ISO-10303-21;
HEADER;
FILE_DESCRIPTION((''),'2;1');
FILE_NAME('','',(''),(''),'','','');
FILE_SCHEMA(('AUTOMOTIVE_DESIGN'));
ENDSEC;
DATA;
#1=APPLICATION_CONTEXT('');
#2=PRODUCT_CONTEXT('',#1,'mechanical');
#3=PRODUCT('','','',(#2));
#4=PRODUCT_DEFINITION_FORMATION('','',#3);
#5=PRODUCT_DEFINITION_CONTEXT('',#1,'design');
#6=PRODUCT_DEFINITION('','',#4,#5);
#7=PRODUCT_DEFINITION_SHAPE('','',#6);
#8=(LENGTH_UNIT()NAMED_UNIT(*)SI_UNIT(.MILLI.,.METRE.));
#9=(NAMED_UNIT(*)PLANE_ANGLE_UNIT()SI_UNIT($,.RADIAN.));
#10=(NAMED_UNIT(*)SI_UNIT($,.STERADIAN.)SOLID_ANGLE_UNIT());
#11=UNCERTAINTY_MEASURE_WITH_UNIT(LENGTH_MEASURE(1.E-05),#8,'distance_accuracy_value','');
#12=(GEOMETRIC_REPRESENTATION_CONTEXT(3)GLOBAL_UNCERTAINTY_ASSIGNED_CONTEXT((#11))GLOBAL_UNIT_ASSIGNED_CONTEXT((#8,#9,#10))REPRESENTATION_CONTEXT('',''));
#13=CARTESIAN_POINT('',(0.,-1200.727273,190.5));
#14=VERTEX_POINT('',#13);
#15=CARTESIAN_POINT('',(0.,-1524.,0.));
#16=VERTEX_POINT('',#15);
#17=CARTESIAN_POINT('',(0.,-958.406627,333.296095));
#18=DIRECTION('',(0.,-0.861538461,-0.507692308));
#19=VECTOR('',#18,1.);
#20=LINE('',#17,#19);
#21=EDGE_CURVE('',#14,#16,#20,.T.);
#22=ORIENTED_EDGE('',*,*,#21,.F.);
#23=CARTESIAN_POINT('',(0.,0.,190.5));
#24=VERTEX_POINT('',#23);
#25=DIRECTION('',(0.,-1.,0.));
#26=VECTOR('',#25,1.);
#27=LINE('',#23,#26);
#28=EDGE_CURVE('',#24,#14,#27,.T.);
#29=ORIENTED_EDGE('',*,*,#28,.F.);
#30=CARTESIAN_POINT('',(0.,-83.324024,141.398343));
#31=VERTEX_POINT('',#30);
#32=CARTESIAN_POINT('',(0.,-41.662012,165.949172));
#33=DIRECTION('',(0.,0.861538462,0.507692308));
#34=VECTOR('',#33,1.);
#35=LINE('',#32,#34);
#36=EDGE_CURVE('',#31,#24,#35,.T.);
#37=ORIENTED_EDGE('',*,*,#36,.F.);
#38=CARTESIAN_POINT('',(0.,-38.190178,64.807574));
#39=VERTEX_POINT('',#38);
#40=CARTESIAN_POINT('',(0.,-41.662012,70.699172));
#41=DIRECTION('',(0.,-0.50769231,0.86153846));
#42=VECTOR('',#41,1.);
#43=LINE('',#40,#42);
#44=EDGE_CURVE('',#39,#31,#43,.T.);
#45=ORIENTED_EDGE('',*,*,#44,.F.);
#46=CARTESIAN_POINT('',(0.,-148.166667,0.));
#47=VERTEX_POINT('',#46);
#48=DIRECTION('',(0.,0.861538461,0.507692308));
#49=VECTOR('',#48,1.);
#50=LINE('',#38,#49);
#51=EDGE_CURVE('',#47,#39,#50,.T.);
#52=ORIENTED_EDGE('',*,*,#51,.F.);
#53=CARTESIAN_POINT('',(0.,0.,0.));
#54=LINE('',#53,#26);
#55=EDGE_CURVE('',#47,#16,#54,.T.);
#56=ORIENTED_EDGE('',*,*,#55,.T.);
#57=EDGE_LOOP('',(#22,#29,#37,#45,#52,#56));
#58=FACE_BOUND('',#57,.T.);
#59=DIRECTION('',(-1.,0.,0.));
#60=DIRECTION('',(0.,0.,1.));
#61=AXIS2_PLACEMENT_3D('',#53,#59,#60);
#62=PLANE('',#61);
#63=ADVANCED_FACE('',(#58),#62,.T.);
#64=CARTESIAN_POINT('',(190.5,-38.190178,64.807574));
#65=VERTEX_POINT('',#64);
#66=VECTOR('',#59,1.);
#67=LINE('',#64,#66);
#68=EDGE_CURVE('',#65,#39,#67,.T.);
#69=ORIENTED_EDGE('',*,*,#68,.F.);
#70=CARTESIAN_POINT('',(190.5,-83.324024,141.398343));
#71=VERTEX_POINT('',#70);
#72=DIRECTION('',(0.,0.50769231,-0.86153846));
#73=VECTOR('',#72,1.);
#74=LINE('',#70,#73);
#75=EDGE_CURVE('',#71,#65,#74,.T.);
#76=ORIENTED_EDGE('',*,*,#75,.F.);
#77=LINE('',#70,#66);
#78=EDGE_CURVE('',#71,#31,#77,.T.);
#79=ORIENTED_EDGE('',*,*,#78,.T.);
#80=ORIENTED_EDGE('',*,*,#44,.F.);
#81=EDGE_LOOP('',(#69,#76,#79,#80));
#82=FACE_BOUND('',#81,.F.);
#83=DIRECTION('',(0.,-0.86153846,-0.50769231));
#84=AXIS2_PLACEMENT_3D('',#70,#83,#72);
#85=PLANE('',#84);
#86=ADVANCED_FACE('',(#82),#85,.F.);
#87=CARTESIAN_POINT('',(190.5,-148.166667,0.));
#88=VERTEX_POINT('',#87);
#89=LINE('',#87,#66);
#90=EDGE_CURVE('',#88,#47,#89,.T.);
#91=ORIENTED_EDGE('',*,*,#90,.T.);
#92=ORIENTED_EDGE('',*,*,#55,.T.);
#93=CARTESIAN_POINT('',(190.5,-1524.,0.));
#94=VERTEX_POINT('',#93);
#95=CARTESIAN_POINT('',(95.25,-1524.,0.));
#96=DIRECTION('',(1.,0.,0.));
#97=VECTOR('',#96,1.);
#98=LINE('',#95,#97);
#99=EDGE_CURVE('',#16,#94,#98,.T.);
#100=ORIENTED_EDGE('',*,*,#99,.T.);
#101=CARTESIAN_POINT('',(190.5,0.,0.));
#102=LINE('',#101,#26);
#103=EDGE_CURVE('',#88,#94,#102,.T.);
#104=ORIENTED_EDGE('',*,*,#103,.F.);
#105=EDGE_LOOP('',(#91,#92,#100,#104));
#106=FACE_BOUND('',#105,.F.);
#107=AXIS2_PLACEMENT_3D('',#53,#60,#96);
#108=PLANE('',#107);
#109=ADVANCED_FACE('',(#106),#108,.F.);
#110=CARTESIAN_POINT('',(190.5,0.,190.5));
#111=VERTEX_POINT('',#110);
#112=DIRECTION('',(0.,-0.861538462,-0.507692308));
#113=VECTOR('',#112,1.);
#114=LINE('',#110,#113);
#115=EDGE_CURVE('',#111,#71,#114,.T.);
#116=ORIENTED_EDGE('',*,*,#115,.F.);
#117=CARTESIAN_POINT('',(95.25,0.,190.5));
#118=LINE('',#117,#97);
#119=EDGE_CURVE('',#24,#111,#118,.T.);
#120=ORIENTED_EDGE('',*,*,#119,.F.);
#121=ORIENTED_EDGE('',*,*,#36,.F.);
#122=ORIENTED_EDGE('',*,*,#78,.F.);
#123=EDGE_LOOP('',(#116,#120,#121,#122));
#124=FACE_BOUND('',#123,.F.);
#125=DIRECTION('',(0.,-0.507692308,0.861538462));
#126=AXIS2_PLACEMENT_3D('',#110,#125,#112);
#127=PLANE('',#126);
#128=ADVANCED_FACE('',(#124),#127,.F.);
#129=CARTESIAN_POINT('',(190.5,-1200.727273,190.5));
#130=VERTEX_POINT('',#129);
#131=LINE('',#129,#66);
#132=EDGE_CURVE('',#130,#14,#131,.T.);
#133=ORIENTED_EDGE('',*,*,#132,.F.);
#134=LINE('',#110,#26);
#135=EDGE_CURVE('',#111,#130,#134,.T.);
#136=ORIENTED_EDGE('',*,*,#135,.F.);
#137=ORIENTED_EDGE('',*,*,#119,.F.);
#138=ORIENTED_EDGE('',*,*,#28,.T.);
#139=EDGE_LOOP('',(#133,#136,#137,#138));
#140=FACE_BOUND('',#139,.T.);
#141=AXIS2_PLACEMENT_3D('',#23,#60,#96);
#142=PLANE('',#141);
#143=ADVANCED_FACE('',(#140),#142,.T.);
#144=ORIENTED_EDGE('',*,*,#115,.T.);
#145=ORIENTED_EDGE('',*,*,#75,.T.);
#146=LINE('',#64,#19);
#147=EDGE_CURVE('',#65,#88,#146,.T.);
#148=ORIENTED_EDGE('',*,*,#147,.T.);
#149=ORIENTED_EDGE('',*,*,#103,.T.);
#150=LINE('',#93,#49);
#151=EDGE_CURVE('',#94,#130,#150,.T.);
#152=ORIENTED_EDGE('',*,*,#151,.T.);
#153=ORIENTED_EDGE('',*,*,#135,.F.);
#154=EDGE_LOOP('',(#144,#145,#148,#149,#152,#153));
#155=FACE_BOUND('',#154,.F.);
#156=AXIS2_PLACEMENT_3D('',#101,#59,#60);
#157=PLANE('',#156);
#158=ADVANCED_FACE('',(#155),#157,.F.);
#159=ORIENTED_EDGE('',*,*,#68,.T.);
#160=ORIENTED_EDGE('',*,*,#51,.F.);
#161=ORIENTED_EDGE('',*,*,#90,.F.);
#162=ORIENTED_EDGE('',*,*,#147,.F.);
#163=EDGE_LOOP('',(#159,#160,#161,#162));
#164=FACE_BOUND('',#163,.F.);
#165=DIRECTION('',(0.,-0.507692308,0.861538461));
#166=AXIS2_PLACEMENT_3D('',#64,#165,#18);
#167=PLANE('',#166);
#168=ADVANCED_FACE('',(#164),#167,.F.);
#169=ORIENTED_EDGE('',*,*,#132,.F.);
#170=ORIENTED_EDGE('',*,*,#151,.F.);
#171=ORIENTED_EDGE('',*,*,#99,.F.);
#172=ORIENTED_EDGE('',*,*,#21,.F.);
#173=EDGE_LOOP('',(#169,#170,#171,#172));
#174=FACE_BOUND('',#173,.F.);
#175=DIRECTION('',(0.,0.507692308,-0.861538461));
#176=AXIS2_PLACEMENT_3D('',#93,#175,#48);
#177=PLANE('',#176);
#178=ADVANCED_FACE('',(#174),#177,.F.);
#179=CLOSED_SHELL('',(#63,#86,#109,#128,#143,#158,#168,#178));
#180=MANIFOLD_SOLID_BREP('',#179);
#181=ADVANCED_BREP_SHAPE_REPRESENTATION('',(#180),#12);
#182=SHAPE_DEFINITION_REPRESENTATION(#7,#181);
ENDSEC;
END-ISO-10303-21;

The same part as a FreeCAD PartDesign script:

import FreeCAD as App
import Part
import Sketcher

V = App.Vector
Q = App.Units.Quantity


def add_polygon(sketch, points):
    """Adds a closed chain of lines whose ends are joined by coincident constraints."""
    first, n = sketch.GeometryCount, len(points)
    for a, b in zip(points, points[1:] + points[:1]):
        sketch.addGeometry(Part.LineSegment(App.Vector(*a, 0), App.Vector(*b, 0)), False)
    for i in range(n):
        sketch.addConstraint(Sketcher.Constraint("Coincident", first + i, 2, first + (i + 1) % n, 1))

doc = App.newDocument("Part")
body = doc.addObject("PartDesign::Body", "Body")

sketch1 = body.newObject("Sketcher::SketchObject", "Sketch")
sketch1.AttachmentSupport = (doc.getObject("XZ_Plane"), [""])
sketch1.MapMode = "FlatFace"
add_polygon(sketch1, [(0, 190.5), (0, 0), (190.5, 0), (190.5, 190.5)])
sketch1.addConstraint([
    Sketcher.Constraint("Vertical", 0),
    Sketcher.Constraint("Horizontal", 1),
    Sketcher.Constraint("Vertical", 2),
    Sketcher.Constraint("Horizontal", 3),
    Sketcher.Constraint("Coincident", 0, 2, -1, 1),
    Sketcher.Constraint("Equal", 3, 0),
    Sketcher.Constraint("DistanceX", 1, 1, 1, 2, Q("7.5 in")),
])
pad1 = body.newObject("PartDesign::Pad", "Pad")
pad1.Profile = sketch1
pad1.Length = Q("60 in")

sketch2 = body.newObject("Sketcher::SketchObject", "Sketch001")
sketch2.AttachmentSupport = (doc.getObject("YZ_Plane"), [""])
sketch2.MapMode = "FlatFace"
sketch2.AttachmentOffset = App.Placement(V(0, 0, 7.5 * 25.4), App.Rotation())
add_polygon(sketch2, [(-1524, 190.5), (-1524, 0), (-1200.727273, 190.5)])
add_polygon(sketch2, [(-83.324024, 141.398343), (0, 0), (0, 190.5)])
sketch2.addConstraint([
    Sketcher.Constraint("Vertical", 0),
    Sketcher.Constraint("Horizontal", 2),
    Sketcher.Constraint("Vertical", 4),
    Sketcher.Constraint("Coincident", 3, 2, -1, 1),
    Sketcher.Constraint("PointOnObject", 0, 2, -1),
    Sketcher.Constraint("Perpendicular", 1, 3),
    Sketcher.Constraint("Perpendicular", 3, 5),
    Sketcher.Constraint("Horizontal", 2, 2, 4, 2),
    Sketcher.Constraint("DistanceY", 0, 2, 0, 1, Q("7.5 in")),
    Sketcher.Constraint("DistanceX", 0, 2, -1, 1, Q("60 in")),
    Sketcher.Constraint("DistanceX", 2, 2, 2, 1, 323.272727),
])
pocket1 = body.newObject("PartDesign::Pocket", "Pocket")
pocket1.Profile = sketch2
pocket1.Type = "ThroughAll"

sketch3 = body.newObject("Sketcher::SketchObject", "Sketch002")
sketch3.AttachmentSupport = (doc.getObject("YZ_Plane"), [""])
sketch3.MapMode = "FlatFace"
sketch3.AttachmentOffset = App.Placement(V(0, 0, 7.5 * 25.4), App.Rotation())
add_polygon(sketch3, [(0, 0), (-38.190178, 64.807574), (-148.166667, 0)])
sketch3.addConstraint([
    Sketcher.Constraint("Horizontal", 2),
    Sketcher.Constraint("Coincident", 2, 2, -1, 1),
    Sketcher.Constraint("Perpendicular", 0, 1),
    Sketcher.Constraint("Distance", 1, 127.651282),
    Sketcher.Constraint("DistanceX", 2, 1, 2, 2, 148.166667),
])
pocket2 = body.newObject("PartDesign::Pocket", "Pocket001")
pocket2.Profile = sketch3
pocket2.Type = "ThroughAll"

doc.recompute()
